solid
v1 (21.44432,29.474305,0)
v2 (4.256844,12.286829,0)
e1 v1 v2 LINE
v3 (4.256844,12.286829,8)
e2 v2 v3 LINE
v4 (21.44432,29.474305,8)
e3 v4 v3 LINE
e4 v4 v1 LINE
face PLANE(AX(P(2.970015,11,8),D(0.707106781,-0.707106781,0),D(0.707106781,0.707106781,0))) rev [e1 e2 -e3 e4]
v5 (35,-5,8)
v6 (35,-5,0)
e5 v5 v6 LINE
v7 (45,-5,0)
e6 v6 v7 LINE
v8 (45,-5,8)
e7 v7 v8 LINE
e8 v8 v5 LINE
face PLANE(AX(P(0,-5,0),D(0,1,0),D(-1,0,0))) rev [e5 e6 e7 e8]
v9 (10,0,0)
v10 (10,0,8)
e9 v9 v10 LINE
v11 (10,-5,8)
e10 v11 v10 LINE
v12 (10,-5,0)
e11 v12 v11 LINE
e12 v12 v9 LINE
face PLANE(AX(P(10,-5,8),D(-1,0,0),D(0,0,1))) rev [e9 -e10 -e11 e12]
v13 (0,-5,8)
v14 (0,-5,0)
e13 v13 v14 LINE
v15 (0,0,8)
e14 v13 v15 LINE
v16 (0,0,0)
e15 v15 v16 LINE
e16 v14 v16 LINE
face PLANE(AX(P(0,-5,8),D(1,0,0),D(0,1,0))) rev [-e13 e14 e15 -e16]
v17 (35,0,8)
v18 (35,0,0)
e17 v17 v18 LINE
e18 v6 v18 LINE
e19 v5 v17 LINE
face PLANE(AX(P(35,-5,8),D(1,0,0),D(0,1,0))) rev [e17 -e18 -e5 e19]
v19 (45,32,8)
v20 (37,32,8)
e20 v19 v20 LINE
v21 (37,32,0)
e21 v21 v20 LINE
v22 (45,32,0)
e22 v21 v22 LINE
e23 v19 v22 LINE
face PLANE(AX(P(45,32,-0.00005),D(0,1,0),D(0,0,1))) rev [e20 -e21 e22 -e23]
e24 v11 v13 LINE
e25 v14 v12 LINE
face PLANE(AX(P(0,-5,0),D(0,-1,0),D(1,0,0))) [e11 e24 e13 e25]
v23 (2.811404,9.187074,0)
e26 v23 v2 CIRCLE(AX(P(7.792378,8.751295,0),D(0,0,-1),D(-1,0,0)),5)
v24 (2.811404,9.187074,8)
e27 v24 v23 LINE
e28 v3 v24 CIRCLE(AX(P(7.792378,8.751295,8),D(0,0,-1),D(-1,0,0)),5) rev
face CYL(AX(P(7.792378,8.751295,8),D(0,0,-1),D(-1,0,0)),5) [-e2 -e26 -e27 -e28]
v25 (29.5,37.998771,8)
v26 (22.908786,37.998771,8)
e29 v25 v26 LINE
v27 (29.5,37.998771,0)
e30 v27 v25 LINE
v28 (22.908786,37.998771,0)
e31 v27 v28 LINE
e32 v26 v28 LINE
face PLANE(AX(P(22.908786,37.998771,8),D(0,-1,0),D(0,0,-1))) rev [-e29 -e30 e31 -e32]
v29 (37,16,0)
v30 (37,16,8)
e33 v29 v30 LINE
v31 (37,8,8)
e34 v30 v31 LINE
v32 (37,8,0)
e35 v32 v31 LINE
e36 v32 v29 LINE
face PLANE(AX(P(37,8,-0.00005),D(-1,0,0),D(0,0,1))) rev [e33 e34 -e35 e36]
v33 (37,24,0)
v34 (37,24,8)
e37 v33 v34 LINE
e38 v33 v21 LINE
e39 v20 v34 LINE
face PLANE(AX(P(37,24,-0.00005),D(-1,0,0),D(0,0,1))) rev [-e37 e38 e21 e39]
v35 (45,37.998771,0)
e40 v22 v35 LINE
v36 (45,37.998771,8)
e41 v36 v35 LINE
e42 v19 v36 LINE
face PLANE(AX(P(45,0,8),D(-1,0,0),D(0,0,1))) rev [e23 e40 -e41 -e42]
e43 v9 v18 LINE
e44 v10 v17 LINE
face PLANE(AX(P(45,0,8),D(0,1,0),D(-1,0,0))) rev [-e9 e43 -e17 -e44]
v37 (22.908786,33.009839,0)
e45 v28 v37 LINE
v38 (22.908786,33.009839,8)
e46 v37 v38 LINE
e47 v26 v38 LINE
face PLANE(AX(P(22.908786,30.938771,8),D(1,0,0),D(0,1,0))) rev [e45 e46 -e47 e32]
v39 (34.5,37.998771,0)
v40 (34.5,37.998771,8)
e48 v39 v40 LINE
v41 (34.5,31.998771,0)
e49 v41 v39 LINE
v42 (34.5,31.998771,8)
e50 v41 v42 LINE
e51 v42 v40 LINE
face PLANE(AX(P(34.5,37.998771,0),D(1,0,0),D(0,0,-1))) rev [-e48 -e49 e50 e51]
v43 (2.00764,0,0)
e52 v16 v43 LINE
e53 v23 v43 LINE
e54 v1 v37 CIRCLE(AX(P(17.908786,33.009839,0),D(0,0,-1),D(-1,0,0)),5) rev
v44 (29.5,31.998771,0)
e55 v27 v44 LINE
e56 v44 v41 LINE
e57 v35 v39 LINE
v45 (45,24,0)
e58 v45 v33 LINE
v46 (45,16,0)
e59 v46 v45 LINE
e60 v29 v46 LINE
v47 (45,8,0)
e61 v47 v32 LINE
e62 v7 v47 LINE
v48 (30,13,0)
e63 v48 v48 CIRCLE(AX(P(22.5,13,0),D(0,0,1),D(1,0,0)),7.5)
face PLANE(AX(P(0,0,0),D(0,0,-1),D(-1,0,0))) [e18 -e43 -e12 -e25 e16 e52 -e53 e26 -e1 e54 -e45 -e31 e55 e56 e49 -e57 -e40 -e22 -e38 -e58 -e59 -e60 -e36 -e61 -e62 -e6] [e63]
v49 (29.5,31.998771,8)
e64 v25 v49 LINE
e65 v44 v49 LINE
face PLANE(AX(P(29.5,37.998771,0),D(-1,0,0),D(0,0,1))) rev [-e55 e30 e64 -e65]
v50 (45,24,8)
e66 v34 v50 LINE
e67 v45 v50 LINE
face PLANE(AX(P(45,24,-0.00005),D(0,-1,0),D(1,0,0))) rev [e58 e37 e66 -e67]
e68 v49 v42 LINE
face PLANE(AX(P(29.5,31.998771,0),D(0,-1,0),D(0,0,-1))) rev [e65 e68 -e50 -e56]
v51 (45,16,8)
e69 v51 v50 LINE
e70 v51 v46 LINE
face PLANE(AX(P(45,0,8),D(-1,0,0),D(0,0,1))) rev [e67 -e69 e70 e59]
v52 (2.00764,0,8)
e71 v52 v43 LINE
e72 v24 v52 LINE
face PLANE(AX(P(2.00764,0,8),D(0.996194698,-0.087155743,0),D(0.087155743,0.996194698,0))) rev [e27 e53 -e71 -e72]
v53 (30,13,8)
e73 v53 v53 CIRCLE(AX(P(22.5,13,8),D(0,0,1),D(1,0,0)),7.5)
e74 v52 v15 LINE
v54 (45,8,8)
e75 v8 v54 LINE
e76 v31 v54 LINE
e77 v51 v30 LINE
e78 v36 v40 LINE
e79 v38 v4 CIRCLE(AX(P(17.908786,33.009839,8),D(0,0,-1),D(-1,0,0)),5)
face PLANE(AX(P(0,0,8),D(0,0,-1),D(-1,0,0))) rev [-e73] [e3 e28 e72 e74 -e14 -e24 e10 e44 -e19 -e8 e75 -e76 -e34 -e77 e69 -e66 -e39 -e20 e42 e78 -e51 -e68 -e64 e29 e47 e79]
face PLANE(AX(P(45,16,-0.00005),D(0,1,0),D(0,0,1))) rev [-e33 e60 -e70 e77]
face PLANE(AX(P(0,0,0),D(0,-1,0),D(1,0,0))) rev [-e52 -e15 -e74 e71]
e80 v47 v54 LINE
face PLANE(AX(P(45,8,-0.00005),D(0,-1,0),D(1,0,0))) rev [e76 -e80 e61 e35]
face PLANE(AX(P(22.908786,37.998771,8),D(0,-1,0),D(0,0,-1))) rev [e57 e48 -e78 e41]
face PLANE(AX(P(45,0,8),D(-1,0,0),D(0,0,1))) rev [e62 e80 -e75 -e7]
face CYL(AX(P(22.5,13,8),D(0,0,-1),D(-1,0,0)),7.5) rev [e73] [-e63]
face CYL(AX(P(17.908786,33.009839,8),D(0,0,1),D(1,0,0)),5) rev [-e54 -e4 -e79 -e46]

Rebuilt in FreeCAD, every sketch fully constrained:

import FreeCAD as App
import Part
import Sketcher
Q = App.Units.Quantity


def edges_at(feature, points):
    """Names of the edges that pass closest to the given points."""
    edges = feature.Shape.Edges
    near = lambda p: min(range(len(edges)), key=lambda i: edges[i].distToShape(Part.Vertex(*p))[0])
    return sorted({f"Edge{near(p) + 1}" for p in points})


def add_polygon(sketch, points):
    """Adds a closed chain of lines whose ends are joined by coincident constraints."""
    first, n = sketch.GeometryCount, len(points)
    for a, b in zip(points, points[1:] + points[:1]):
        sketch.addGeometry(Part.LineSegment(App.Vector(*a, 0), App.Vector(*b, 0)), False)
    for i in range(n):
        sketch.addConstraint(Sketcher.Constraint("Coincident", first + i, 2, first + (i + 1) % n, 1))

doc = App.newDocument("Part")
body = doc.addObject("PartDesign::Body", "Body")

sketch1 = body.newObject("Sketcher::SketchObject", "Sketch")
sketch1.AttachmentSupport = (doc.getObject("XY_Plane"), [""])
sketch1.MapMode = "FlatFace"
add_polygon(sketch1, [(22.908786, 30.938771), (2.970015, 11), (2.00764, 0), (45, 0), (45, 37.998771), (22.908786, 37.998771)])
sketch1.addGeometry(Part.Circle(App.Vector(22.5, 13, 0), App.Vector(0, 0, 1), 7.5), False)
sketch1.addConstraint([
    Sketcher.Constraint("Horizontal", 2),
    Sketcher.Constraint("Vertical", 3),
    Sketcher.Constraint("Horizontal", 4),
    Sketcher.Constraint("Vertical", 5),
    Sketcher.Constraint("PointOnObject", 1, 2, -1),
    Sketcher.Constraint("Diameter", 6, Q("15 mm")),
    Sketcher.Constraint("Angle", 0, Q("-135 deg")),
    Sketcher.Constraint("Angle", 1, Q("-95 deg")),
    Sketcher.Constraint("DistanceY", -1, 1, 6, 3, Q("13 mm")),
    Sketcher.Constraint("DistanceY", -1, 1, 0, 2, Q("11 mm")),
    Sketcher.Constraint("DistanceX", -1, 1, 2, 2, Q("45 mm")),
    Sketcher.Constraint("DistanceY", 5, 2, 5, 1, Q("7.06 mm")),
    Sketcher.Constraint("DistanceX", -1, 1, 6, 3, Q("22.5 mm")),
    Sketcher.Constraint("DistanceX", 2, 1, 2, 2, Q("42.99236 mm")),
    Sketcher.Constraint("DistanceY", 3, 1, 3, 2, Q("37.998771 mm")),
])
pad1 = body.newObject("PartDesign::Pad", "Pad")
pad1.Profile = sketch1
pad1.Length = 8
doc.recompute()

fillet = body.newObject("PartDesign::Fillet", "Fillet")
fillet.Base = (pad1, edges_at(pad1, [(2.97, 11, 4), (22.909, 30.939, 4)]))
fillet.Radius = 5

sketch2 = body.newObject("Sketcher::SketchObject", "Sketch001")
sketch2.AttachmentSupport = (doc.getObject("XY_Plane"), [""])
sketch2.MapMode = "FlatFace"
sketch2.AttachmentOffset = App.Placement(App.Vector(0, 0, 8), App.Rotation())
add_polygon(sketch2, [(29.5, 37.998771), (29.5, 31.998771), (34.5, 31.998771), (34.5, 37.998771)])
sketch2.addConstraint([
    Sketcher.Constraint("Vertical", 0),
    Sketcher.Constraint("Horizontal", 1),
    Sketcher.Constraint("Vertical", 2),
    Sketcher.Constraint("Horizontal", 3),
    Sketcher.Constraint("DistanceX", 1, 1, 1, 2, Q("5 mm")),
    Sketcher.Constraint("DistanceY", 0, 2, 0, 1, Q("6 mm")),
    Sketcher.Constraint("DistanceX", -1, 1, 0, 2, Q("29.5 mm")),
    Sketcher.Constraint("DistanceY", -1, 1, 0, 2, Q("31.998771 mm")),
])
pocket1 = body.newObject("PartDesign::Pocket", "Pocket")
pocket1.Profile = sketch2
pocket1.Length = 8

sketch3 = body.newObject("Sketcher::SketchObject", "Sketch002")
sketch3.AttachmentSupport = (doc.getObject("XZ_Plane"), [""])
sketch3.MapMode = "FlatFace"
add_polygon(sketch3, [(35, 8), (35, 0), (45, 0), (45, 8)])
add_polygon(sketch3, [(0, 8), (0, 0), (10, 0), (10, 8)])
sketch3.addConstraint([
    Sketcher.Constraint("Vertical", 0),
    Sketcher.Constraint("Horizontal", 1),
    Sketcher.Constraint("Vertical", 2),
    Sketcher.Constraint("Horizontal", 3),
    Sketcher.Constraint("Vertical", 4),
    Sketcher.Constraint("Horizontal", 5),
    Sketcher.Constraint("Vertical", 6),
    Sketcher.Constraint("Horizontal", 7),
    Sketcher.Constraint("Coincident", 4, 2, -1, 1),
    Sketcher.Constraint("PointOnObject", 0, 2, -1),
    Sketcher.Constraint("Horizontal", 3, 2, 6, 2),
    Sketcher.Constraint("Equal", 3, 5),
    Sketcher.Constraint("DistanceX", 1, 1, 1, 2, Q("10 mm")),
    Sketcher.Constraint("DistanceY", 0, 2, 0, 1, Q("8 mm")),
    Sketcher.Constraint("DistanceX", -1, 1, 0, 2, Q("35 mm")),
])
pad2 = body.newObject("PartDesign::Pad", "Pad001")
pad2.Profile = sketch3
pad2.Length = 5

sketch4 = body.newObject("Sketcher::SketchObject", "Sketch003")
sketch4.AttachmentSupport = (doc.getObject("XY_Plane"), [""])
sketch4.MapMode = "FlatFace"
sketch4.AttachmentOffset = App.Placement(App.Vector(0, 0, 8), App.Rotation())
add_polygon(sketch4, [(37, 16), (37, 8), (45, 8), (45, 16)])
add_polygon(sketch4, [(37, 32), (37, 24), (45, 24), (45, 32)])
sketch4.addConstraint([
    Sketcher.Constraint("Vertical", 0),
    Sketcher.Constraint("Horizontal", 1),
    Sketcher.Constraint("Vertical", 2),
    Sketcher.Constraint("Horizontal", 3),
    Sketcher.Constraint("Vertical", 4),
    Sketcher.Constraint("Horizontal", 5),
    Sketcher.Constraint("Vertical", 6),
    Sketcher.Constraint("Horizontal", 7),
    Sketcher.Constraint("Vertical", 3, 2, 4, 2),
    Sketcher.Constraint("Vertical", 2, 2, 5, 2),
    Sketcher.Constraint("Equal", 7, 0),
    Sketcher.Constraint("Equal", 2, 4),
    Sketcher.Constraint("DistanceX", 1, 1, 1, 2, Q("8 mm")),
    Sketcher.Constraint("DistanceX", -1, 1, 0, 2, Q("37 mm")),
    Sketcher.Constraint("DistanceY", -1, 1, 0, 2, Q("8 mm")),
    Sketcher.Constraint("DistanceY", -1, 1, 4, 2, Q("24 mm")),
])
pocket2 = body.newObject("PartDesign::Pocket", "Pocket001")
pocket2.Profile = sketch4
pocket2.Type = "ThroughAll"

doc.recompute()
